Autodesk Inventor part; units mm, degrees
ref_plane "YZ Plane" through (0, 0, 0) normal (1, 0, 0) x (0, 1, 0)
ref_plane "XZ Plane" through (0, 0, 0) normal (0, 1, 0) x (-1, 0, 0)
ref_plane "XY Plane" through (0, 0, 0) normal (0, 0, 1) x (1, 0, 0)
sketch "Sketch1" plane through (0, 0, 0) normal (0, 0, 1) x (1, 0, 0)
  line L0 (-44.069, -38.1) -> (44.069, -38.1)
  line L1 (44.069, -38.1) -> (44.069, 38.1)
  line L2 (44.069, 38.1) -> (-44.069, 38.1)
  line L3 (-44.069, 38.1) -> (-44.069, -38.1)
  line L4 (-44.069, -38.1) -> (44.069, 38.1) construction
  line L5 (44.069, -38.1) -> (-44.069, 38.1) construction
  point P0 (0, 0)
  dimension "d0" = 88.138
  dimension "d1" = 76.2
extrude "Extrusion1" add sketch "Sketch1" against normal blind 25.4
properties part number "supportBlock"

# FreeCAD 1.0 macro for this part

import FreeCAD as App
import Part
import Sketcher
Q = App.Units.Quantity


def add_polygon(sketch, points):
    """Adds a closed chain of lines whose ends are joined by coincident constraints."""
    first, n = sketch.GeometryCount, len(points)
    for a, b in zip(points, points[1:] + points[:1]):
        sketch.addGeometry(Part.LineSegment(App.Vector(*a, 0), App.Vector(*b, 0)), False)
    for i in range(n):
        sketch.addConstraint(Sketcher.Constraint("Coincident", first + i, 2, first + (i + 1) % n, 1))

doc = App.newDocument("Part")
body = doc.addObject("PartDesign::Body", "Body")

sketch1 = doc.addObject("Sketcher::SketchObject", "Sketch")
body.addObject(sketch1)
sketch1.AttachmentSupport = (doc.XY_Plane, [""])
sketch1.MapMode = "FlatFace"
add_polygon(sketch1, [(-44.069, 38.1), (-44.069, -38.1), (44.069, -38.1), (44.069, 38.1)])
sketch1.addConstraint(Sketcher.Constraint("Vertical", 0))
sketch1.addConstraint(Sketcher.Constraint("Horizontal", 1))
sketch1.addConstraint(Sketcher.Constraint("Vertical", 2))
sketch1.addConstraint(Sketcher.Constraint("Horizontal", 3))
sketch1.addConstraint(Sketcher.Constraint("Symmetric", 0, 2, 2, 2, -1, 1))
sketch1.addConstraint(Sketcher.Constraint("DistanceY", 0, 2, 0, 1, Q("3 in")))
sketch1.addConstraint(Sketcher.Constraint("DistanceX", 1, 1, 1, 2, Q("3.47 in")))
pad1 = doc.addObject("PartDesign::Pad", "Pad")
body.addObject(pad1)
pad1.Profile = sketch1
pad1.Length = Q("1 in")
pad1.Reversed = True

doc.recompute()
